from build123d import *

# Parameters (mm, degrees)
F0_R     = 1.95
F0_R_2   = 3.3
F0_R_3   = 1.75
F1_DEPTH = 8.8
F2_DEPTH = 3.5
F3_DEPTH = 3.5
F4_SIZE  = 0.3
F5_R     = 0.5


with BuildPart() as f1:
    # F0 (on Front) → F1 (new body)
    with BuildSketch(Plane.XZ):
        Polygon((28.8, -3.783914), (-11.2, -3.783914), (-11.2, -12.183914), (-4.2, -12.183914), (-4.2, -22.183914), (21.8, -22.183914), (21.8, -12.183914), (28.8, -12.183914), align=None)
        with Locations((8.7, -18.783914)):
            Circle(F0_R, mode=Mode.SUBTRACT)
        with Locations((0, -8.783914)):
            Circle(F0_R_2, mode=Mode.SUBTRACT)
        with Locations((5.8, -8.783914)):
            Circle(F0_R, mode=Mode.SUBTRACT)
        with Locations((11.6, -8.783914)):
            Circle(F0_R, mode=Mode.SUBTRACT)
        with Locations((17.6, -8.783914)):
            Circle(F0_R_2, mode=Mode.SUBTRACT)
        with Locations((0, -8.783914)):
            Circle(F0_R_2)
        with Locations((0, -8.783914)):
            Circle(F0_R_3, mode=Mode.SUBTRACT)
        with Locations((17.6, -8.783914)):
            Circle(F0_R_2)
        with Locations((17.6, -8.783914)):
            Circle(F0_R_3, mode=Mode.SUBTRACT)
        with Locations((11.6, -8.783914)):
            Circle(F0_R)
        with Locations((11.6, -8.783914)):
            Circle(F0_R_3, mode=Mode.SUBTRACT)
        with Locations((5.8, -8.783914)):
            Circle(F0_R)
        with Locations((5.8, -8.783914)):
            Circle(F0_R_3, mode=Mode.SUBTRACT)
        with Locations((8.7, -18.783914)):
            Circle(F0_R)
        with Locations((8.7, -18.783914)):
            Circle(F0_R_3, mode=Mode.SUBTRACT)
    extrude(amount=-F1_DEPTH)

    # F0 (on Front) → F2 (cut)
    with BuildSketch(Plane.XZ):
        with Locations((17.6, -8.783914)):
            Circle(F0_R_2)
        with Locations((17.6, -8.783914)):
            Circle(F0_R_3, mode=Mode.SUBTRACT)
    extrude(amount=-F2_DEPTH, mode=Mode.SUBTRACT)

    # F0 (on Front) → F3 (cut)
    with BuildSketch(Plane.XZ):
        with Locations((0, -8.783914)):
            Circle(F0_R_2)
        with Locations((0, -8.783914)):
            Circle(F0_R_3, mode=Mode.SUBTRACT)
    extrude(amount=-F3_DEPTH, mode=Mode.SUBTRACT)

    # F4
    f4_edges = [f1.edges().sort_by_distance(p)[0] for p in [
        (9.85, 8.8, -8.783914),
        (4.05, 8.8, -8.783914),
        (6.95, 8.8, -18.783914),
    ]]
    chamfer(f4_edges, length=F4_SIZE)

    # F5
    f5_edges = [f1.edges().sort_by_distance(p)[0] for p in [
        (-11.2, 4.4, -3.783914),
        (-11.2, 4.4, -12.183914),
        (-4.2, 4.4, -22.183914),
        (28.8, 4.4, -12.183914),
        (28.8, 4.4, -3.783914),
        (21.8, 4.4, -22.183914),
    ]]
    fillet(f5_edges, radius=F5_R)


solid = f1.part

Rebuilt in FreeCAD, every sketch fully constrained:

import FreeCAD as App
import Part
import Sketcher
from FreeCAD import Vector
Q = App.Units.Quantity


def edges_at(feature, points):
    """Names of the edges that pass closest to the given points."""
    edges = feature.Shape.Edges
    near = lambda p: min(range(len(edges)), key=lambda i: edges[i].distToShape(Part.Vertex(*p))[0])
    return sorted({f"Edge{near(p) + 1}" for p in points})

doc = App.newDocument("Part")
body = doc.addObject("PartDesign::Body", "Body")

sketch1 = doc.addObject("Sketcher::SketchObject", "Sketch")
body.addObject(sketch1)
sketch1.AttachmentSupport = (doc.XZ_Plane, [""])
sketch1.MapMode = "FlatFace"
sketch1.addGeometry([
    Part.LineSegment(Vector(28.8, -3.783914, 0), Vector(-11.2, -3.783914, 0)),
    Part.LineSegment(Vector(-11.2, -3.783914, 0), Vector(-11.2, -12.183914, 0)),
    Part.LineSegment(Vector(-11.2, -12.183914, 0), Vector(-4.2, -12.183914, 0)),
    Part.LineSegment(Vector(-4.2, -12.183914, 0), Vector(-4.2, -22.183914, 0)),
    Part.LineSegment(Vector(-4.2, -22.183914, 0), Vector(21.8, -22.183914, 0)),
    Part.LineSegment(Vector(21.8, -22.183914, 0), Vector(21.8, -12.183914, 0)),
    Part.LineSegment(Vector(21.8, -12.183914, 0), Vector(28.8, -12.183914, 0)),
    Part.LineSegment(Vector(28.8, -12.183914, 0), Vector(28.8, -3.783914, 0)),
    Part.Circle(Vector(8.7, -18.783914, 0), Vector(0, 0, 1), 1.75),
    Part.Circle(Vector(0, -8.783914, 0), Vector(0, 0, 1), 1.75),
    Part.Circle(Vector(5.8, -8.783914, 0), Vector(0, 0, 1), 1.75),
    Part.Circle(Vector(11.6, -8.783914, 0), Vector(0, 0, 1), 1.75),
    Part.Circle(Vector(17.6, -8.783914, 0), Vector(0, 0, 1), 1.75),
], False)
sketch1.addConstraint([
    Sketcher.Constraint("Coincident", 0, 2, 1, 1),
    Sketcher.Constraint("Coincident", 1, 2, 2, 1),
    Sketcher.Constraint("Coincident", 2, 2, 3, 1),
    Sketcher.Constraint("Coincident", 3, 2, 4, 1),
    Sketcher.Constraint("Coincident", 4, 2, 5, 1),
    Sketcher.Constraint("Coincident", 5, 2, 6, 1),
    Sketcher.Constraint("Coincident", 6, 2, 7, 1),
    Sketcher.Constraint("Coincident", 7, 2, 0, 1),
    Sketcher.Constraint("Horizontal", 0),
    Sketcher.Constraint("Vertical", 1),
    Sketcher.Constraint("Horizontal", 2),
    Sketcher.Constraint("Vertical", 3),
    Sketcher.Constraint("Horizontal", 4),
    Sketcher.Constraint("Vertical", 5),
    Sketcher.Constraint("Horizontal", 6),
    Sketcher.Constraint("Vertical", 7),
    Sketcher.Constraint("Equal", 8, 9),
    Sketcher.Constraint("Equal", 9, 10),
    Sketcher.Constraint("Equal", 10, 11),
    Sketcher.Constraint("Equal", 11, 12),
    Sketcher.Constraint("PointOnObject", 9, 3, -2),
    Sketcher.Constraint("Horizontal", 9, 3, 10, 3),
    Sketcher.Constraint("Horizontal", 10, 3, 11, 3),
    Sketcher.Constraint("Horizontal", 11, 3, 12, 3),
    Sketcher.Constraint("Horizontal", 2, 2, 5, 2),
    Sketcher.Constraint("Equal", 2, 6),
    Sketcher.Constraint("Diameter", 8, Q("3.5 mm")),
    Sketcher.Constraint("DistanceX", 0, 2, 0, 1, Q("40 mm")),
    Sketcher.Constraint("DistanceX", 2, 1, 2, 2, Q("7 mm")),
    Sketcher.Constraint("DistanceY", 3, 2, 3, 1, Q("10 mm")),
    Sketcher.Constraint("DistanceY", 1, 2, 1, 1, Q("8.4 mm")),
    Sketcher.Constraint("DistanceY", 8, 3, 9, 3, Q("10 mm")),
    Sketcher.Constraint("DistanceX", 11, 3, 12, 3, Q("6 mm")),
    Sketcher.Constraint("DistanceY", 9, 3, 0, 2, Q("5 mm")),
    Sketcher.Constraint("DistanceX", 0, 2, 10, 3, Q("17 mm")),
    Sketcher.Constraint("DistanceX", -1, 1, 8, 3, Q("8.7 mm")),
    Sketcher.Constraint("DistanceX", -1, 1, 10, 3, Q("5.8 mm")),
    Sketcher.Constraint("DistanceX", -1, 1, 11, 3, Q("11.6 mm")),
    Sketcher.Constraint("DistanceY", 8, 3, -1, 1, Q("18.783914 mm")),
])
pad1 = doc.addObject("PartDesign::Pad", "Pad")
body.addObject(pad1)
pad1.Profile = sketch1
pad1.Length = 8.8
pad1.Reversed = True

sketch2 = doc.addObject("Sketcher::SketchObject", "Sketch001")
body.addObject(sketch2)
sketch2.AttachmentSupport = (doc.XZ_Plane, [""])
sketch2.MapMode = "FlatFace"
sketch2.addGeometry([
    Part.Circle(Vector(17.6, -8.783914, 0), Vector(0, 0, 1), 3.3),
    Part.Circle(Vector(17.6, -8.783914, 0), Vector(0, 0, 1), 1.75),
], False)
sketch2.addConstraint([
    Sketcher.Constraint("Coincident", 1, 3, 0, 3),
    Sketcher.Constraint("Diameter", 0, Q("6.6 mm")),
    Sketcher.Constraint("Diameter", 1, Q("3.5 mm")),
    Sketcher.Constraint("DistanceX", -1, 1, 0, 3, Q("17.6 mm")),
    Sketcher.Constraint("DistanceY", 0, 3, -1, 1, Q("8.783914 mm")),
])
pocket1 = doc.addObject("PartDesign::Pocket", "Pocket")
body.addObject(pocket1)
pocket1.Profile = sketch2
pocket1.Length = 3.5

sketch3 = doc.addObject("Sketcher::SketchObject", "Sketch002")
body.addObject(sketch3)
sketch3.AttachmentSupport = (doc.XZ_Plane, [""])
sketch3.MapMode = "FlatFace"
sketch3.addGeometry([
    Part.Circle(Vector(0, -8.783914, 0), Vector(0, 0, 1), 3.3),
    Part.Circle(Vector(0, -8.783914, 0), Vector(0, 0, 1), 1.75),
], False)
sketch3.addConstraint([
    Sketcher.Constraint("Coincident", 1, 3, 0, 3),
    Sketcher.Constraint("PointOnObject", 0, 3, -2),
    Sketcher.Constraint("Diameter", 0, Q("6.6 mm")),
    Sketcher.Constraint("Diameter", 1, Q("3.5 mm")),
    Sketcher.Constraint("DistanceY", 0, 3, -1, 1, Q("8.783914 mm")),
])
pocket2 = doc.addObject("PartDesign::Pocket", "Pocket001")
body.addObject(pocket2)
pocket2.Profile = sketch3
pocket2.Length = 3.5
doc.recompute()

chamfer = doc.addObject("PartDesign::Chamfer", "Chamfer")
body.addObject(chamfer)
chamfer.Base = (pocket2, edges_at(pocket2, [(9.85, 8.8, -8.784), (4.05, 8.8, -8.784), (6.95, 8.8, -18.784)]))
chamfer.Size = 0.3
doc.recompute()

fillet = doc.addObject("PartDesign::Fillet", "Fillet")
body.addObject(fillet)
fillet.Base = (chamfer, edges_at(chamfer, [
    (-11.2, 4.4, -3.784),
    (-11.2, 4.4, -12.184),
    (-4.2, 4.4, -22.184),
    (28.8, 4.4, -12.184),
    (28.8, 4.4, -3.784),
    (21.8, 4.4, -22.184),
]))
fillet.Radius = 0.5

doc.recompute()
